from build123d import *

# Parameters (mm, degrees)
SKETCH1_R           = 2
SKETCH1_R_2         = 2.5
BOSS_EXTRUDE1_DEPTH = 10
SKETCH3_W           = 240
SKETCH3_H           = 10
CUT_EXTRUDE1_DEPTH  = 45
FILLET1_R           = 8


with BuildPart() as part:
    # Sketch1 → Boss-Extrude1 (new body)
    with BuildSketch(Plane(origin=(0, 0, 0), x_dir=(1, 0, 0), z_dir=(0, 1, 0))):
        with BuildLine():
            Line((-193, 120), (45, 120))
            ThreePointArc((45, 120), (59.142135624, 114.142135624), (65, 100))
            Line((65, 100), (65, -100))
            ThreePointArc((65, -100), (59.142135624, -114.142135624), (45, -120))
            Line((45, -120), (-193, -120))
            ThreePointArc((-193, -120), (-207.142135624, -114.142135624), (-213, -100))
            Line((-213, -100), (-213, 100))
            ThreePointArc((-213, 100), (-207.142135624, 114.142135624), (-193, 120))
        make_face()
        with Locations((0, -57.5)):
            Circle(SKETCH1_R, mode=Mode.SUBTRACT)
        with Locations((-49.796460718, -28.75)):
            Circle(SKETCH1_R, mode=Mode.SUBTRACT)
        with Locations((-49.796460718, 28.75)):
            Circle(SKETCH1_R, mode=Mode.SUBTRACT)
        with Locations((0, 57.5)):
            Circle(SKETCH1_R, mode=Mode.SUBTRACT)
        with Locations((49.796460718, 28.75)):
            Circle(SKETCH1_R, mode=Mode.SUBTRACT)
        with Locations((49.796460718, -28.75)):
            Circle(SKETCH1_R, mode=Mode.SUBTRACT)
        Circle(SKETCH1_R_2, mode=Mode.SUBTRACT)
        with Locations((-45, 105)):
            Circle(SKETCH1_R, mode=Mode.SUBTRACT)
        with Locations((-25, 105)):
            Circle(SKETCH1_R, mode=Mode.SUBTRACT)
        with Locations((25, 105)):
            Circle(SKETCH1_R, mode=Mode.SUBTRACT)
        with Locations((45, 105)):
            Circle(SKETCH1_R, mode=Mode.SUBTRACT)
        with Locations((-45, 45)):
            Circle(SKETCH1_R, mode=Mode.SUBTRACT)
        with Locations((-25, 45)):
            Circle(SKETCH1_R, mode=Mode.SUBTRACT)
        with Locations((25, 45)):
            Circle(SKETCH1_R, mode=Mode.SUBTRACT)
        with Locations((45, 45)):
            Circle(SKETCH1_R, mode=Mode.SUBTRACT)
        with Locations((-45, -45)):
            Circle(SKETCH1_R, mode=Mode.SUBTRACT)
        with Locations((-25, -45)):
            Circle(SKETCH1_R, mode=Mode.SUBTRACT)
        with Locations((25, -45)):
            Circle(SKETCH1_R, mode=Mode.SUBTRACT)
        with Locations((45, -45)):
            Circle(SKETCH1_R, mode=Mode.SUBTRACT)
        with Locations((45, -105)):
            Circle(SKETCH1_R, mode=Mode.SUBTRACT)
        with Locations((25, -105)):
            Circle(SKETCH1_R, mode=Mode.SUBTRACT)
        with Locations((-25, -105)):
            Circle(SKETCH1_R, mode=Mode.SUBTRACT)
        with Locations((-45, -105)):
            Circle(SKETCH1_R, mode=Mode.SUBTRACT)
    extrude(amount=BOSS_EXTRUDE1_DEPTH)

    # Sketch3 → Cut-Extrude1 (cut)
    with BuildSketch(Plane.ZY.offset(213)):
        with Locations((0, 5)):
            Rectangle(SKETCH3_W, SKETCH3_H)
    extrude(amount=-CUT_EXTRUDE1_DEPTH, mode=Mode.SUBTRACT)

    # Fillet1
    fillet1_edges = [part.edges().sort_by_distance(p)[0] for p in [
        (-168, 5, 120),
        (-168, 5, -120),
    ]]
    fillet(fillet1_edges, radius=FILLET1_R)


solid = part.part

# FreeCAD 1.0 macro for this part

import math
import FreeCAD as App
import Part
import Sketcher
from FreeCAD import Vector


def edges_at(feature, points):
    """Names of the edges that pass closest to the given points."""
    edges = feature.Shape.Edges
    near = lambda p: min(range(len(edges)), key=lambda i: edges[i].distToShape(Part.Vertex(*p))[0])
    return sorted({f"Edge{near(p) + 1}" for p in points})

doc = App.newDocument("Part")
params = doc.addObject("Spreadsheet::Sheet", "Params")
for row, (alias, value) in enumerate([
    ("sketch1_diameter", "4 mm"),
    ("sketch1_diameter2", "5 mm"),
    ("sketch1_radius", "20 mm"),
    ("sketch1_width", "238 mm"),
    ("sketch1_height", "200 mm"),
    ("pad1_length", "10 mm"),
    ("sketch2_width", "10 mm"),
    ("sketch2_height", "240 mm"),
    ("pocket1_length", "45 mm"),
    ("fillet_radius", "8 mm"),
], start=1):
    params.set(f"A{row}", alias)
    params.set(f"B{row}", "=" + value)
    params.setAlias(f"B{row}", alias)

body = doc.addObject("PartDesign::Body", "Body")

# Sketch on XZ plane
sketch1 = doc.addObject("Sketcher::SketchObject", "Sketch")
body.addObject(sketch1)
sketch1.AttachmentSupport = (doc.XZ_Plane, [""])
sketch1.MapMode = "FlatFace"
sketch1.addGeometry(Part.LineSegment(Vector(45, -120, 0), Vector(-193, -120, 0)), False)
sketch1.addGeometry(Part.ArcOfCircle(Part.Circle(Vector(-193, -100, 0), Vector(0, 0, 1), 20), math.radians(180), math.radians(270)), False)
sketch1.addGeometry(Part.LineSegment(Vector(-213, -100, 0), Vector(-213, 100, 0)), False)
sketch1.addGeometry(Part.ArcOfCircle(Part.Circle(Vector(-193, 100, 0), Vector(0, 0, 1), 20), math.radians(90), math.radians(180)), False)
sketch1.addGeometry(Part.LineSegment(Vector(-193, 120, 0), Vector(45, 120, 0)), False)
sketch1.addGeometry(Part.ArcOfCircle(Part.Circle(Vector(45, 100, 0), Vector(0, 0, 1), 20), math.radians(0), math.radians(90)), False)
sketch1.addGeometry(Part.LineSegment(Vector(65, 100, 0), Vector(65, -100, 0)), False)
sketch1.addGeometry(Part.ArcOfCircle(Part.Circle(Vector(45, -100, 0), Vector(0, 0, 1), 20), math.radians(-90), math.radians(0)), False)
sketch1.addGeometry(Part.Circle(Vector(45, 105, 0), Vector(0, 0, 1), 2), False)
sketch1.addGeometry(Part.Circle(Vector(25, 105, 0), Vector(0, 0, 1), 2), False)
sketch1.addGeometry(Part.Circle(Vector(45, 45, 0), Vector(0, 0, 1), 2), False)
sketch1.addGeometry(Part.Circle(Vector(49.8, 28.8, 0), Vector(0, 0, 1), 2), False)
sketch1.addGeometry(Part.Circle(Vector(25, 45, 0), Vector(0, 0, 1), 2), False)
sketch1.addGeometry(Part.Circle(Vector(-25, 105, 0), Vector(0, 0, 1), 2), False)
sketch1.addGeometry(Part.Circle(Vector(0, 57.5, 0), Vector(0, 0, 1), 2), False)
sketch1.addGeometry(Part.Circle(Vector(-45, 105, 0), Vector(0, 0, 1), 2), False)
sketch1.addGeometry(Part.Circle(Vector(-25, 45, 0), Vector(0, 0, 1), 2), False)
sketch1.addGeometry(Part.Circle(Vector(0, 0, 0), Vector(0, 0, 1), 2.5), False)
sketch1.addGeometry(Part.Circle(Vector(-45, 45, 0), Vector(0, 0, 1), 2), False)
sketch1.addGeometry(Part.Circle(Vector(-49.8, 28.8, 0), Vector(0, 0, 1), 2), False)
sketch1.addGeometry(Part.Circle(Vector(49.8, -28.8, 0), Vector(0, 0, 1), 2), False)
sketch1.addGeometry(Part.Circle(Vector(45, -45, 0), Vector(0, 0, 1), 2), False)
sketch1.addGeometry(Part.Circle(Vector(25, -45, 0), Vector(0, 0, 1), 2), False)
sketch1.addGeometry(Part.Circle(Vector(45, -105, 0), Vector(0, 0, 1), 2), False)
sketch1.addGeometry(Part.Circle(Vector(25, -105, 0), Vector(0, 0, 1), 2), False)
sketch1.addGeometry(Part.Circle(Vector(-25, -45, 0), Vector(0, 0, 1), 2), False)
sketch1.addGeometry(Part.Circle(Vector(-49.8, -28.8, 0), Vector(0, 0, 1), 2), False)
sketch1.addGeometry(Part.Circle(Vector(-45, -45, 0), Vector(0, 0, 1), 2), False)
sketch1.addGeometry(Part.Circle(Vector(0, -57.5, 0), Vector(0, 0, 1), 2), False)
sketch1.addGeometry(Part.Circle(Vector(-25, -105, 0), Vector(0, 0, 1), 2), False)
sketch1.addGeometry(Part.Circle(Vector(-45, -105, 0), Vector(0, 0, 1), 2), False)
sketch1.addConstraint(Sketcher.Constraint("Tangent", 0, 2, 1, 2))
sketch1.addConstraint(Sketcher.Constraint("Tangent", 1, 1, 2, 1))
sketch1.addConstraint(Sketcher.Constraint("Tangent", 2, 2, 3, 2))
sketch1.addConstraint(Sketcher.Constraint("Tangent", 3, 1, 4, 1))
sketch1.addConstraint(Sketcher.Constraint("Tangent", 4, 2, 5, 2))
sketch1.addConstraint(Sketcher.Constraint("Tangent", 5, 1, 6, 1))
sketch1.addConstraint(Sketcher.Constraint("Tangent", 6, 2, 7, 2))
sketch1.addConstraint(Sketcher.Constraint("Tangent", 7, 1, 0, 1))
sketch1.addConstraint(Sketcher.Constraint("Horizontal", 0))
sketch1.addConstraint(Sketcher.Constraint("Vertical", 2))
sketch1.addConstraint(Sketcher.Constraint("Horizontal", 4))
sketch1.addConstraint(Sketcher.Constraint("Vertical", 6))
sketch1.addConstraint(Sketcher.Constraint("Coincident", 17, 3, -1, 1))
sketch1.addConstraint(Sketcher.Constraint("Equal", 1, 3))
sketch1.addConstraint(Sketcher.Constraint("Equal", 3, 5))
sketch1.addConstraint(Sketcher.Constraint("Equal", 5, 7))
sketch1.addConstraint(Sketcher.Constraint("Equal", 8, 9))
sketch1.addConstraint(Sketcher.Constraint("Equal", 9, 10))
sketch1.addConstraint(Sketcher.Constraint("Equal", 10, 11))
sketch1.addConstraint(Sketcher.Constraint("Equal", 11, 12))
sketch1.addConstraint(Sketcher.Constraint("Equal", 12, 13))
sketch1.addConstraint(Sketcher.Constraint("Equal", 13, 14))
sketch1.addConstraint(Sketcher.Constraint("Equal", 14, 15))
sketch1.addConstraint(Sketcher.Constraint("Equal", 15, 16))
sketch1.addConstraint(Sketcher.Constraint("Equal", 16, 18))
sketch1.addConstraint(Sketcher.Constraint("Equal", 18, 19))
sketch1.addConstraint(Sketcher.Constraint("Equal", 19, 20))
sketch1.addConstraint(Sketcher.Constraint("Equal", 20, 21))
sketch1.addConstraint(Sketcher.Constraint("Equal", 21, 22))
sketch1.addConstraint(Sketcher.Constraint("Equal", 22, 23))
sketch1.addConstraint(Sketcher.Constraint("Equal", 23, 24))
sketch1.addConstraint(Sketcher.Constraint("Equal", 24, 25))
sketch1.addConstraint(Sketcher.Constraint("Equal", 25, 26))
sketch1.addConstraint(Sketcher.Constraint("Equal", 26, 27))
sketch1.addConstraint(Sketcher.Constraint("Equal", 27, 28))
sketch1.addConstraint(Sketcher.Constraint("Equal", 28, 29))
sketch1.addConstraint(Sketcher.Constraint("Equal", 29, 30))
sketch1.addConstraint(Sketcher.Constraint("Symmetric", 19, 3, 20, 3, -1, 1))
sketch1.addConstraint(Sketcher.Constraint("Symmetric", 18, 3, 21, 3, -1, 1))
sketch1.addConstraint(Sketcher.Constraint("Symmetric", 16, 3, 22, 3, -1, 1))
sketch1.addConstraint(Sketcher.Constraint("Symmetric", 15, 3, 23, 3, -1, 1))
sketch1.addConstraint(Sketcher.Constraint("Symmetric", 13, 3, 24, 3, -1, 1))
sketch1.addConstraint(Sketcher.Constraint("Symmetric", 12, 3, 25, 3, -1, 1))
sketch1.addConstraint(Sketcher.Constraint("Symmetric", 11, 3, 26, 3, -1, 1))
sketch1.addConstraint(Sketcher.Constraint("Symmetric", 10, 3, 27, 3, -1, 1))
sketch1.addConstraint(Sketcher.Constraint("Symmetric", 14, 3, 28, 3, -1, 1))
sketch1.addConstraint(Sketcher.Constraint("Symmetric", 9, 3, 29, 3, -1, 1))
sketch1.addConstraint(Sketcher.Constraint("Symmetric", 8, 3, 30, 3, -1, 1))
sketch1.addConstraint(Sketcher.Constraint("Symmetric", 9, 3, 13, 3, -2))
sketch1.addConstraint(Sketcher.Constraint("Symmetric", 8, 3, 15, 3, -2))
sketch1.addConstraint(Sketcher.Constraint("Symmetric", 12, 3, 16, 3, -2))
sketch1.addConstraint(Sketcher.Constraint("Symmetric", 10, 3, 18, 3, -2))
sketch1.addConstraint(Sketcher.Constraint("Symmetric", 11, 3, 19, 3, -2))
sketch1.addConstraint(Sketcher.Constraint("PointOnObject", 14, 3, -2))
sketch1.addConstraint(Sketcher.Constraint("Horizontal", 8, 3, 9, 3))
sketch1.addConstraint(Sketcher.Constraint("Horizontal", 10, 3, 12, 3))
sketch1.addConstraint(Sketcher.Constraint("Vertical", 7, 3, 8, 3))
sketch1.addConstraint(Sketcher.Constraint("Vertical", 8, 3, 10, 3))
sketch1.addConstraint(Sketcher.Constraint("Vertical", 9, 3, 12, 3))
sketch1.addConstraint(Sketcher.Constraint("Diameter", 8, 4.0))
sketch1.addConstraint(Sketcher.Constraint("Diameter", 17, 5.0))
sketch1.addConstraint(Sketcher.Constraint("Radius", 1, 20.0))
sketch1.addConstraint(Sketcher.Constraint("DistanceX", 0, 2, 0, 1, 238.0))
sketch1.addConstraint(Sketcher.Constraint("DistanceY", 2, 1, 2, 2, 200.0))
sketch1.addConstraint(Sketcher.Constraint("DistanceX", 1, 3, -1, 1, 193.0))
sketch1.addConstraint(Sketcher.Constraint("DistanceY", 1, 3, -1, 1, 100.0))
sketch1.addConstraint(Sketcher.Constraint("DistanceY", -1, 1, 8, 3, 105.0))
sketch1.addConstraint(Sketcher.Constraint("DistanceX", -1, 1, 9, 3, 25.0))
sketch1.addConstraint(Sketcher.Constraint("DistanceY", -1, 1, 10, 3, 45.0))
sketch1.addConstraint(Sketcher.Constraint("DistanceY", -1, 1, 14, 3, 57.5))
sketch1.addConstraint(Sketcher.Constraint("DistanceY", 20, 3, 11, 3, 57.5))
sketch1.addConstraint(Sketcher.Constraint("DistanceX", -1, 1, 11, 3, 49.796461))
sketch1.setExpression("Constraints[59]", "Params.sketch1_diameter")
sketch1.setExpression("Constraints[60]", "Params.sketch1_diameter2")
sketch1.setExpression("Constraints[61]", "Params.sketch1_radius")
sketch1.setExpression("Constraints[62]", "Params.sketch1_width")
sketch1.setExpression("Constraints[63]", "Params.sketch1_height")
pad1 = doc.addObject("PartDesign::Pad", "Pad")
body.addObject(pad1)
pad1.Profile = sketch1
pad1.setExpression("Length", "Params.pad1_length")
pad1.Reversed = True

# Sketch on YZ plane
sketch2 = doc.addObject("Sketcher::SketchObject", "Sketch001")
body.addObject(sketch2)
sketch2.AttachmentSupport = (doc.YZ_Plane, [""])
sketch2.MapMode = "FlatFace"
sketch2.AttachmentOffset = App.Placement(Vector(0, 0, -213), App.Rotation())
sketch2.addGeometry(Part.LineSegment(Vector(10, -120, 0), Vector(0, -120, 0)), False)
sketch2.addGeometry(Part.LineSegment(Vector(0, -120, 0), Vector(0, 120, 0)), False)
sketch2.addGeometry(Part.LineSegment(Vector(0, 120, 0), Vector(10, 120, 0)), False)
sketch2.addGeometry(Part.LineSegment(Vector(10, 120, 0), Vector(10, -120, 0)), False)
sketch2.addConstraint(Sketcher.Constraint("Coincident", 0, 2, 1, 1))
sketch2.addConstraint(Sketcher.Constraint("Coincident", 1, 2, 2, 1))
sketch2.addConstraint(Sketcher.Constraint("Coincident", 2, 2, 3, 1))
sketch2.addConstraint(Sketcher.Constraint("Coincident", 3, 2, 0, 1))
sketch2.addConstraint(Sketcher.Constraint("Horizontal", 0))
sketch2.addConstraint(Sketcher.Constraint("Vertical", 1))
sketch2.addConstraint(Sketcher.Constraint("Horizontal", 2))
sketch2.addConstraint(Sketcher.Constraint("Vertical", 3))
sketch2.addConstraint(Sketcher.Constraint("Symmetric", 0, 2, 1, 2, -1, 1))
sketch2.addConstraint(Sketcher.Constraint("DistanceX", 0, 2, 0, 1, 10.0))
sketch2.addConstraint(Sketcher.Constraint("DistanceY", 1, 1, 1, 2, 240.0))
sketch2.setExpression("Constraints[9]", "Params.sketch2_width")
sketch2.setExpression("Constraints[10]", "Params.sketch2_height")
pocket1 = doc.addObject("PartDesign::Pocket", "Pocket")
body.addObject(pocket1)
pocket1.Profile = sketch2
pocket1.setExpression("Length", "Params.pocket1_length")
pocket1.Reversed = True
doc.recompute()

fillet = doc.addObject("PartDesign::Fillet", "Fillet")
body.addObject(fillet)
fillet.Base = (pocket1, edges_at(pocket1, [(-168, 5, 120), (-168, 5, -120)]))
fillet.setExpression("Radius", "Params.fillet_radius")

doc.recompute()
